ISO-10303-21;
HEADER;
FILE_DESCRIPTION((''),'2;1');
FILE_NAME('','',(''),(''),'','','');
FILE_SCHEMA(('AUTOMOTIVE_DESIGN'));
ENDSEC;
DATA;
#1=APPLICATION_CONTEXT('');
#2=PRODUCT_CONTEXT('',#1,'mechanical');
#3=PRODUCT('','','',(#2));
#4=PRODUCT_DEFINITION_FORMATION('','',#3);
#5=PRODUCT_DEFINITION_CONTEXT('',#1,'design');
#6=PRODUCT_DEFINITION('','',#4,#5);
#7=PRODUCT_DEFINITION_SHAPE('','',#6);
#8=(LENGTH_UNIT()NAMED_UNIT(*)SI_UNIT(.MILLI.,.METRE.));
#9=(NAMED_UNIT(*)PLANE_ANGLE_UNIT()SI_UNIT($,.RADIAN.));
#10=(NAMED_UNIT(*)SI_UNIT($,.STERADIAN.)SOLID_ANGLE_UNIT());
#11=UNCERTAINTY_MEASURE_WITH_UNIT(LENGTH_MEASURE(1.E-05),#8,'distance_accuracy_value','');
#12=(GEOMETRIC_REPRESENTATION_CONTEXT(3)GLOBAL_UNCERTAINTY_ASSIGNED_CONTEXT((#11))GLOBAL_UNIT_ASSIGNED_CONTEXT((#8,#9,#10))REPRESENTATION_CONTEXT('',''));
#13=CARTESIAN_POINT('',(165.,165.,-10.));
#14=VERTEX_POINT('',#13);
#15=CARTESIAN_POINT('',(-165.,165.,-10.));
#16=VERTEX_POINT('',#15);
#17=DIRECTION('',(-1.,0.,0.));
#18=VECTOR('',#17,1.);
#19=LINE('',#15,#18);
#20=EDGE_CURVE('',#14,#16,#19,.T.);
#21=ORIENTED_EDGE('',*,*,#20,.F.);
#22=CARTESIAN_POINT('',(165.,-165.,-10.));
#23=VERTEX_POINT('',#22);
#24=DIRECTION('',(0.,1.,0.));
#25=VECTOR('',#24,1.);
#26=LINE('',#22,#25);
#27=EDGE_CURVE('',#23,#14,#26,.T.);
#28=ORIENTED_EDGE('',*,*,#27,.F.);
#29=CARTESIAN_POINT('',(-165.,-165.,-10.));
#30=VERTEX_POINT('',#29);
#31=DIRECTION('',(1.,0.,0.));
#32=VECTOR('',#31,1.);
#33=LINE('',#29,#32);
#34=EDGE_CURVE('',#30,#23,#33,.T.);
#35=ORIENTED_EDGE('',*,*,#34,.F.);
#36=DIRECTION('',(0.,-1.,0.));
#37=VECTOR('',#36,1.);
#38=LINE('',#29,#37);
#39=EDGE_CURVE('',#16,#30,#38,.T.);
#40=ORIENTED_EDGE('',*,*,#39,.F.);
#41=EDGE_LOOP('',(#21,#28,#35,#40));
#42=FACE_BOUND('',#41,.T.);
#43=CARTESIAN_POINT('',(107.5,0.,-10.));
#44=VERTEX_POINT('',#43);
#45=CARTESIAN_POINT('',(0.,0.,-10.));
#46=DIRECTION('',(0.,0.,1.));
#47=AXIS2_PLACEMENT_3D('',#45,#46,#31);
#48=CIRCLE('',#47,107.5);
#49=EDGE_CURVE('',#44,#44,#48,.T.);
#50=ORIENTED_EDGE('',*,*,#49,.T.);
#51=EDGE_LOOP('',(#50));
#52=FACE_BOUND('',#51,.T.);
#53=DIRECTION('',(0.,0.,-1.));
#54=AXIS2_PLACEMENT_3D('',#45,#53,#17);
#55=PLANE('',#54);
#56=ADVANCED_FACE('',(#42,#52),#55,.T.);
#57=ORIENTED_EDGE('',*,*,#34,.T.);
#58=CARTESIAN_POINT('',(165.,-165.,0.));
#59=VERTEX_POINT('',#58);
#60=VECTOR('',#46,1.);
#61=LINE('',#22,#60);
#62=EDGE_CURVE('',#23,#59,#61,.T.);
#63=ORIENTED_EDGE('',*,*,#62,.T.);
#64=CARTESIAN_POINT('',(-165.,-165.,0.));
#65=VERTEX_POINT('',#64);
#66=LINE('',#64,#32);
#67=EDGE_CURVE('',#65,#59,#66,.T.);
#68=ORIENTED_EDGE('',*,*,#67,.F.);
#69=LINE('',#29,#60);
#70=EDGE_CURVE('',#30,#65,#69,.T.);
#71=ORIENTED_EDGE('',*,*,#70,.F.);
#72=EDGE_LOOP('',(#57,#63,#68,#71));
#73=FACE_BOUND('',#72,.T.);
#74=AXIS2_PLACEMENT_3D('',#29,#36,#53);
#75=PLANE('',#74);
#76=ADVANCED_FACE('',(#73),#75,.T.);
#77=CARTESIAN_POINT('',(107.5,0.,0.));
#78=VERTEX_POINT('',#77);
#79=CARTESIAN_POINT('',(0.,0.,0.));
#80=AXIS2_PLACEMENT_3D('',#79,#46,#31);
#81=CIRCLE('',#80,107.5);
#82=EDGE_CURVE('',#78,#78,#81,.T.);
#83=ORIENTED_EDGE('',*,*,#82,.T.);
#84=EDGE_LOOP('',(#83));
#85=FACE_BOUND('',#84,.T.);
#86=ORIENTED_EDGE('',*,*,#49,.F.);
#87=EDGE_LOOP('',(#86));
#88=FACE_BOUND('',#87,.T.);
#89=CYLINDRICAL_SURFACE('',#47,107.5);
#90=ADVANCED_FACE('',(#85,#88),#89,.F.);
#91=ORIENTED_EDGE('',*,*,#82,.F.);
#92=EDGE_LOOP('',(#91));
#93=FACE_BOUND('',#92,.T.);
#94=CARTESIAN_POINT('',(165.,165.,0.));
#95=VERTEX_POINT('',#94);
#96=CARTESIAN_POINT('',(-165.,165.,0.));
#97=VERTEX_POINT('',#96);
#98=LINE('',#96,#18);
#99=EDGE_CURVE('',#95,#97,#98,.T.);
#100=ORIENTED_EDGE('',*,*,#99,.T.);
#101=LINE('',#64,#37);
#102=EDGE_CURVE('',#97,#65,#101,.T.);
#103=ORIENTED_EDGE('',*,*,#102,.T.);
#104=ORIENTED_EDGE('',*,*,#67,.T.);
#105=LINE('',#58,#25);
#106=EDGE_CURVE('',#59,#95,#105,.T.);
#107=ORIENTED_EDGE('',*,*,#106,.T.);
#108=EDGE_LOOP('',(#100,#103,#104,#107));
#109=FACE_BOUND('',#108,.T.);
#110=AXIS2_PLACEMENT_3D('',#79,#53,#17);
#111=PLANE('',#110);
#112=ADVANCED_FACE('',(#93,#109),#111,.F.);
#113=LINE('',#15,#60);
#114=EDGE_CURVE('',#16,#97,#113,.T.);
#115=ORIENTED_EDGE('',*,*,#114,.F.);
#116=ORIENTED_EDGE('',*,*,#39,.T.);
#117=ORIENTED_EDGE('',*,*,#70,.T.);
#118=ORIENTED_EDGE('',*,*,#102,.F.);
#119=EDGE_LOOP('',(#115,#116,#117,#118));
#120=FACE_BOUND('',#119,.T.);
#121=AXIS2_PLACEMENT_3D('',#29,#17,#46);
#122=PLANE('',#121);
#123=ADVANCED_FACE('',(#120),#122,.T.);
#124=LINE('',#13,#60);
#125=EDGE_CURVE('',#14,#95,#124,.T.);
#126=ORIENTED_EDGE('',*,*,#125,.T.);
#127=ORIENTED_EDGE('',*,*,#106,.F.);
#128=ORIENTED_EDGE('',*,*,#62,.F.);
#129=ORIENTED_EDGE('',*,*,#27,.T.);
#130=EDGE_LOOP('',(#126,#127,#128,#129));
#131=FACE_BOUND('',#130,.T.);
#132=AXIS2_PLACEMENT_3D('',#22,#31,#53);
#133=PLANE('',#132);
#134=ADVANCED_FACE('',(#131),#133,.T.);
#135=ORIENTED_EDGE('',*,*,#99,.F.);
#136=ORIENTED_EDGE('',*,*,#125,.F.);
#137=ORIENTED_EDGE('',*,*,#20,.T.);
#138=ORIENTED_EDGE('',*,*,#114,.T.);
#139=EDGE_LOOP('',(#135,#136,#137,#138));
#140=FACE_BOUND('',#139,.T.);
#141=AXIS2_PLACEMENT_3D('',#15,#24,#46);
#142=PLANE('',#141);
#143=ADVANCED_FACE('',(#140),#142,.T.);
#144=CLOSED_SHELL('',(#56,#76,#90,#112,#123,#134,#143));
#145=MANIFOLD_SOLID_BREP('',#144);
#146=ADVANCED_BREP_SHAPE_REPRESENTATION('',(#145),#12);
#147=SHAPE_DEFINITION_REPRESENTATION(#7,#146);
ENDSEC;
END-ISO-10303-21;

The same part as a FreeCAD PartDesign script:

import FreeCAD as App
import Part
import Sketcher
Q = App.Units.Quantity

doc = App.newDocument("Part")
body = doc.addObject("PartDesign::Body", "Body")

sketch1 = body.newObject("Sketcher::SketchObject", "Sketch")
sketch1.AttachmentSupport = (doc.getObject("XY_Plane"), [""])
sketch1.MapMode = "FlatFace"
sketch1.addGeometry([
    Part.LineSegment(App.Vector(-165, 165, 0), App.Vector(-165, -165, 0)),
    Part.LineSegment(App.Vector(-165, -165, 0), App.Vector(165, -165, 0)),
    Part.LineSegment(App.Vector(165, -165, 0), App.Vector(165, 165, 0)),
    Part.LineSegment(App.Vector(165, 165, 0), App.Vector(-165, 165, 0)),
], False)
sketch1.addConstraint([
    Sketcher.Constraint("Coincident", 0, 2, 1, 1),
    Sketcher.Constraint("Coincident", 1, 2, 2, 1),
    Sketcher.Constraint("Coincident", 2, 2, 3, 1),
    Sketcher.Constraint("Coincident", 3, 2, 0, 1),
    Sketcher.Constraint("Vertical", 0),
    Sketcher.Constraint("Horizontal", 1),
    Sketcher.Constraint("Vertical", 2),
    Sketcher.Constraint("Horizontal", 3),
    Sketcher.Constraint("Symmetric", 0, 2, 2, 2, -1, 1),
    Sketcher.Constraint("Equal", 3, 0),
    Sketcher.Constraint("DistanceX", 1, 1, 1, 2, Q("330 mm")),
])
pad1 = body.newObject("PartDesign::Pad", "Pad")
pad1.Profile = sketch1
pad1.Length = 10
pad1.Reversed = True

sketch2 = body.newObject("Sketcher::SketchObject", "Sketch001")
sketch2.AttachmentSupport = (doc.getObject("XY_Plane"), [""])
sketch2.MapMode = "FlatFace"
sketch2.addGeometry(Part.Circle(App.Vector(0, 0, 0), App.Vector(0, 0, 1), 107.5), False)
sketch2.addConstraint([
    Sketcher.Constraint("Coincident", 0, 3, -1, 1),
    Sketcher.Constraint("Diameter", 0, Q("215 mm")),
])
pocket1 = body.newObject("PartDesign::Pocket", "Pocket")
pocket1.Profile = sketch2
pocket1.Length = 10

doc.recompute()
